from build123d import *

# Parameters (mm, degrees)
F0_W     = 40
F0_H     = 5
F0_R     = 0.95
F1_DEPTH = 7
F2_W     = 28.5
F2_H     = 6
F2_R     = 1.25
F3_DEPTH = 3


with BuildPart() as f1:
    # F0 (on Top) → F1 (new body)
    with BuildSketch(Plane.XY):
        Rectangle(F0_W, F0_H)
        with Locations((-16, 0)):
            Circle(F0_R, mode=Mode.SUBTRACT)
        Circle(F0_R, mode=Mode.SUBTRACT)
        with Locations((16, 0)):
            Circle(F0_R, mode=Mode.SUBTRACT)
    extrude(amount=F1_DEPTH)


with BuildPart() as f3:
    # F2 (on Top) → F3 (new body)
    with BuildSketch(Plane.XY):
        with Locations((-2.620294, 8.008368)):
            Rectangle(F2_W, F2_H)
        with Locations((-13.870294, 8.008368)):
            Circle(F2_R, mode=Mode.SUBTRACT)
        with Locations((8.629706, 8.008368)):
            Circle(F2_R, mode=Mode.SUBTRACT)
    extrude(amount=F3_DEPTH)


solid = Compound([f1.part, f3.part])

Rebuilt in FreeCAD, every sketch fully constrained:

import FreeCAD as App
import Part
import Sketcher

doc = App.newDocument("Part")
body = doc.addObject("PartDesign::Body", "Body")

# Sketch on XY plane
sketch1 = body.newObject("Sketcher::SketchObject", "Sketch")
sketch1.AttachmentSupport = (doc.getObject("XY_Plane"), [""])
sketch1.MapMode = "FlatFace"
sketch1.addGeometry(Part.LineSegment(App.Vector(-20, 2.5, 0), App.Vector(-20, -2.5, 0)), False)
sketch1.addGeometry(Part.LineSegment(App.Vector(-20, -2.5, 0), App.Vector(20, -2.5, 0)), False)
sketch1.addGeometry(Part.LineSegment(App.Vector(20, -2.5, 0), App.Vector(20, 2.5, 0)), False)
sketch1.addGeometry(Part.LineSegment(App.Vector(20, 2.5, 0), App.Vector(-20, 2.5, 0)), False)
sketch1.addGeometry(Part.Circle(App.Vector(-16, 0, 0), App.Vector(0, 0, 1), 0.95), False)
sketch1.addGeometry(Part.Circle(App.Vector(0, 0, 0), App.Vector(0, 0, 1), 0.95), False)
sketch1.addGeometry(Part.Circle(App.Vector(16, 0, 0), App.Vector(0, 0, 1), 0.95), False)
sketch1.addConstraint(Sketcher.Constraint("Coincident", 0, 2, 1, 1))
sketch1.addConstraint(Sketcher.Constraint("Coincident", 1, 2, 2, 1))
sketch1.addConstraint(Sketcher.Constraint("Coincident", 2, 2, 3, 1))
sketch1.addConstraint(Sketcher.Constraint("Coincident", 3, 2, 0, 1))
sketch1.addConstraint(Sketcher.Constraint("Vertical", 0))
sketch1.addConstraint(Sketcher.Constraint("Horizontal", 1))
sketch1.addConstraint(Sketcher.Constraint("Vertical", 2))
sketch1.addConstraint(Sketcher.Constraint("Horizontal", 3))
sketch1.addConstraint(Sketcher.Constraint("Coincident", 5, 3, -1, 1))
sketch1.addConstraint(Sketcher.Constraint("Equal", 4, 5))
sketch1.addConstraint(Sketcher.Constraint("Equal", 5, 6))
sketch1.addConstraint(Sketcher.Constraint("Symmetric", 4, 3, 6, 3, -1, 1))
sketch1.addConstraint(Sketcher.Constraint("Symmetric", 0, 2, 2, 2, -1, 1))
sketch1.addConstraint(Sketcher.Constraint("PointOnObject", 4, 3, -1))
sketch1.addConstraint(Sketcher.Constraint("Diameter", 4, 1.9))
sketch1.addConstraint(Sketcher.Constraint("DistanceX", 1, 1, 1, 2, 40.0))
sketch1.addConstraint(Sketcher.Constraint("DistanceY", 0, 2, 0, 1, 5.0))
sketch1.addConstraint(Sketcher.Constraint("DistanceX", 4, 3, -1, 1, 16.0))
pad1 = body.newObject("PartDesign::Pad", "Pad")
pad1.Profile = sketch1
pad1.Length = 7
body2 = doc.addObject("PartDesign::Body", "Body001")

# Sketch on XY plane
sketch2 = body2.newObject("Sketcher::SketchObject", "Sketch001")
sketch2.AttachmentSupport = (doc.getObject("XY_Plane001"), [""])
sketch2.MapMode = "FlatFace"
sketch2.addGeometry(Part.LineSegment(App.Vector(-16.870294, 11.008368, 0), App.Vector(-16.870294, 5.008368, 0)), False)
sketch2.addGeometry(Part.LineSegment(App.Vector(-16.870294, 5.008368, 0), App.Vector(11.629706, 5.008368, 0)), False)
sketch2.addGeometry(Part.LineSegment(App.Vector(11.629706, 5.008368, 0), App.Vector(11.629706, 11.008368, 0)), False)
sketch2.addGeometry(Part.LineSegment(App.Vector(11.629706, 11.008368, 0), App.Vector(-16.870294, 11.008368, 0)), False)
sketch2.addGeometry(Part.Circle(App.Vector(-13.870294, 8.008368, 0), App.Vector(0, 0, 1), 1.25), False)
sketch2.addGeometry(Part.Circle(App.Vector(8.629706, 8.008368, 0), App.Vector(0, 0, 1), 1.25), False)
sketch2.addConstraint(Sketcher.Constraint("Coincident", 0, 2, 1, 1))
sketch2.addConstraint(Sketcher.Constraint("Coincident", 1, 2, 2, 1))
sketch2.addConstraint(Sketcher.Constraint("Coincident", 2, 2, 3, 1))
sketch2.addConstraint(Sketcher.Constraint("Coincident", 3, 2, 0, 1))
sketch2.addConstraint(Sketcher.Constraint("Vertical", 0))
sketch2.addConstraint(Sketcher.Constraint("Horizontal", 1))
sketch2.addConstraint(Sketcher.Constraint("Vertical", 2))
sketch2.addConstraint(Sketcher.Constraint("Horizontal", 3))
sketch2.addConstraint(Sketcher.Constraint("Equal", 4, 5))
sketch2.addConstraint(Sketcher.Constraint("Horizontal", 4, 3, 5, 3))
sketch2.addConstraint(Sketcher.Constraint("Diameter", 4, 2.5))
sketch2.addConstraint(Sketcher.Constraint("DistanceY", 0, 2, 0, 1, 6.0))
sketch2.addConstraint(Sketcher.Constraint("DistanceX", 1, 1, 1, 2, 28.5))
sketch2.addConstraint(Sketcher.Constraint("DistanceX", 0, 2, 4, 3, 3.0))
sketch2.addConstraint(Sketcher.Constraint("DistanceY", 0, 2, 4, 3, 3.0))
sketch2.addConstraint(Sketcher.Constraint("DistanceX", 5, 3, 1, 2, 3.0))
sketch2.addConstraint(Sketcher.Constraint("DistanceY", -1, 1, 4, 3, 8.008368))
sketch2.addConstraint(Sketcher.Constraint("DistanceX", 4, 3, -1, 1, 13.870294))
pad2 = body2.newObject("PartDesign::Pad", "Pad001")
pad2.Profile = sketch2
pad2.Length = 3

doc.recompute()
